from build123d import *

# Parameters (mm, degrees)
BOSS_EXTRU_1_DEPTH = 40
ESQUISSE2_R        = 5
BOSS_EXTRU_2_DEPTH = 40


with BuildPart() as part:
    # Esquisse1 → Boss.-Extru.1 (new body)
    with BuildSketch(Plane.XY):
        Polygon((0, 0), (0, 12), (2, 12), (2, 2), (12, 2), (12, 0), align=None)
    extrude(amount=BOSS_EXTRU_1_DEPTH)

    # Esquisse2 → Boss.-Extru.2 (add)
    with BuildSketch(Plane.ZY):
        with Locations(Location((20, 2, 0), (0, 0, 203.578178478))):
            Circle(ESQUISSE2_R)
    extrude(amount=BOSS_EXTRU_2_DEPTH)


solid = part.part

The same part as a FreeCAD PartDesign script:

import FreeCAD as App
import Part
import Sketcher

V = App.Vector

doc = App.newDocument("Part")
body = doc.addObject("PartDesign::Body", "Body")

# Sketch on XY plane
sketch1 = body.newObject("Sketcher::SketchObject", "Sketch")
sketch1.AttachmentSupport = (doc.getObject("XY_Plane"), [""])
sketch1.MapMode = "FlatFace"
sketch1.addGeometry([
    Part.LineSegment(V(0, 12, 0), V(0, 0, 0)),  # 0
    Part.LineSegment(V(0, 0, 0), V(12, 0, 0)),  # 1
    Part.LineSegment(V(12, 0, 0), V(12, 2, 0)),  # 2
    Part.LineSegment(V(12, 2, 0), V(2, 2, 0)),  # 3
    Part.LineSegment(V(2, 2, 0), V(2, 12, 0)),  # 4
    Part.LineSegment(V(2, 12, 0), V(0, 12, 0)),  # 5
], False)
sketch1.addConstraint([
    Sketcher.Constraint("Coincident", 0, 2, 1, 1),
    Sketcher.Constraint("Coincident", 1, 2, 2, 1),
    Sketcher.Constraint("Coincident", 2, 2, 3, 1),
    Sketcher.Constraint("Coincident", 3, 2, 4, 1),
    Sketcher.Constraint("Coincident", 4, 2, 5, 1),
    Sketcher.Constraint("Coincident", 5, 2, 0, 1),
    Sketcher.Constraint("Vertical", 0),
    Sketcher.Constraint("Horizontal", 1),
    Sketcher.Constraint("Vertical", 2),
    Sketcher.Constraint("Horizontal", 3),
    Sketcher.Constraint("Vertical", 4),
    Sketcher.Constraint("Horizontal", 5),
    Sketcher.Constraint("Coincident", 0, 2, -1, 1),
    Sketcher.Constraint("Equal", 1, 0),
    Sketcher.Constraint("Equal", 5, 2),
    Sketcher.Constraint("DistanceX", 1, 1, 1, 2, 12.0),
    Sketcher.Constraint("DistanceX", 3, 2, 3, 1, 10.0),
])
pad1 = body.newObject("PartDesign::Pad", "Pad")
pad1.Profile = sketch1
pad1.Length = 40

# Sketch on YZ plane
sketch2 = body.newObject("Sketcher::SketchObject", "Sketch001")
sketch2.AttachmentSupport = (doc.getObject("YZ_Plane"), [""])
sketch2.MapMode = "FlatFace"
sketch2.addGeometry(Part.Circle(V(2, 20, 0), V(0, 0, 1), 5), False)
sketch2.addConstraint([
    Sketcher.Constraint("Diameter", 0, 10.0),
    Sketcher.Constraint("DistanceX", -1, 1, 0, 3, 2.0),
    Sketcher.Constraint("DistanceY", -1, 1, 0, 3, 20.0),
])
pad2 = body.newObject("PartDesign::Pad", "Pad001")
pad2.Profile = sketch2
pad2.Length = 40
pad2.Reversed = True

doc.recompute()
